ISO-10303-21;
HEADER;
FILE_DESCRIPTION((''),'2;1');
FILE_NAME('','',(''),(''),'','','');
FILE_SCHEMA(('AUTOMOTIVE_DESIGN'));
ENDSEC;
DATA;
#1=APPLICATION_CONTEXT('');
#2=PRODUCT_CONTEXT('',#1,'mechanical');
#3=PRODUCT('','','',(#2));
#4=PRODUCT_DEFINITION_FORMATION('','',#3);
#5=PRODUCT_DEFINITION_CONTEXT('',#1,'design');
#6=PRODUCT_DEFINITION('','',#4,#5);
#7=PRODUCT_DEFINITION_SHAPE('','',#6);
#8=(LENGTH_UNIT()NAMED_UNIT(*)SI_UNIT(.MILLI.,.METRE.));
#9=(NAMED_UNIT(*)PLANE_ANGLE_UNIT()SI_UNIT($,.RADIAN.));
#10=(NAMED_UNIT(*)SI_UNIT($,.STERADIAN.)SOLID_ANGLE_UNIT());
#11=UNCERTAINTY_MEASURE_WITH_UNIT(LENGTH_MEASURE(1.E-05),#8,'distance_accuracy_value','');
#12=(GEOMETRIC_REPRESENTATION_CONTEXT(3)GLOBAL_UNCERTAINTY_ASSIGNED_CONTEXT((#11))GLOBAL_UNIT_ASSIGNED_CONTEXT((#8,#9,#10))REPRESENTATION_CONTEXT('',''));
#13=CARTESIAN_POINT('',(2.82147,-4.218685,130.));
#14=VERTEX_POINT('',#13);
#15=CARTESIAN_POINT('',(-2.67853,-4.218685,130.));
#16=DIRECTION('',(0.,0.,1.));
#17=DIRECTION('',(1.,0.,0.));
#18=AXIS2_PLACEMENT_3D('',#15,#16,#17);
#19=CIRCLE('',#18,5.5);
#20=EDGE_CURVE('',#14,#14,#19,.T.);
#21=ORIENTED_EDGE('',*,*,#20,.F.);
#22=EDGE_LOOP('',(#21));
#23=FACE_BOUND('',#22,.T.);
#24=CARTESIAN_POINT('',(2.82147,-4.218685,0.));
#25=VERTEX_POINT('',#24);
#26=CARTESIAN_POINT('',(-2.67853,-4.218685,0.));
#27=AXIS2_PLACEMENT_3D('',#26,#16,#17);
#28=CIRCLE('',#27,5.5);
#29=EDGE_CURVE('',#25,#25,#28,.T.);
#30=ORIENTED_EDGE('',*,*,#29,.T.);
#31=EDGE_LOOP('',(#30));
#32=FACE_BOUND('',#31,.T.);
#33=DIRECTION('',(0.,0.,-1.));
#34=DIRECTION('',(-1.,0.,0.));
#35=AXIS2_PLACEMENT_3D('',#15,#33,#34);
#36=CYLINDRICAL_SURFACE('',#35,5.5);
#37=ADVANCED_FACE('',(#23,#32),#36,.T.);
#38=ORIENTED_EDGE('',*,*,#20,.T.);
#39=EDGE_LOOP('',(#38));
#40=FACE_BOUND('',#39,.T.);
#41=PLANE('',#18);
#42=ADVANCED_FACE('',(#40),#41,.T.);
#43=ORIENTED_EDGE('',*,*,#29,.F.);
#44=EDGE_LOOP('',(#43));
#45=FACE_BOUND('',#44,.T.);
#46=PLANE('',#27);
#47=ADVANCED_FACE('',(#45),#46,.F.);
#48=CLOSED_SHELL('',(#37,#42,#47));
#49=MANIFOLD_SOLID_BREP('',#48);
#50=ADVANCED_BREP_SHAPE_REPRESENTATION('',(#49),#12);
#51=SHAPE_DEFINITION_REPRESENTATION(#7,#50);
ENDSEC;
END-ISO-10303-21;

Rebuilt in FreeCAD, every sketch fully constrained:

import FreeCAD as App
import Part
import Sketcher
Q = App.Units.Quantity

doc = App.newDocument("Part")
params = doc.addObject("Spreadsheet::Sheet", "Params")
for row, (alias, value) in enumerate([
    ("sketch1_diameter", "11 mm"),
    ("pad1_length", "130 mm"),
], start=1):
    params.set(f"A{row}", alias)
    params.set(f"B{row}", "=" + value)
    params.setAlias(f"B{row}", alias)

body = doc.addObject("PartDesign::Body", "Body")

sketch1 = body.newObject("Sketcher::SketchObject", "Sketch")
sketch1.AttachmentSupport = (doc.getObject("XY_Plane"), [""])
sketch1.MapMode = "FlatFace"
sketch1.addGeometry(Part.Circle(App.Vector(-3, -4, 0), App.Vector(0, 0, 1), 6), False)
sketch1.addConstraint(Sketcher.Constraint("Diameter", 0, Q("11 mm")))
sketch1.addConstraint(Sketcher.Constraint("DistanceX", 0, 3, -1, 1, Q("2.67853 mm")))
sketch1.addConstraint(Sketcher.Constraint("DistanceY", 0, 3, -1, 1, Q("4.218685 mm")))
sketch1.setExpression("Constraints[0]", "Params.sketch1_diameter")
pad1 = body.newObject("PartDesign::Pad", "Pad")
pad1.Profile = sketch1
pad1.setExpression("Length", "Params.pad1_length")

doc.recompute()
